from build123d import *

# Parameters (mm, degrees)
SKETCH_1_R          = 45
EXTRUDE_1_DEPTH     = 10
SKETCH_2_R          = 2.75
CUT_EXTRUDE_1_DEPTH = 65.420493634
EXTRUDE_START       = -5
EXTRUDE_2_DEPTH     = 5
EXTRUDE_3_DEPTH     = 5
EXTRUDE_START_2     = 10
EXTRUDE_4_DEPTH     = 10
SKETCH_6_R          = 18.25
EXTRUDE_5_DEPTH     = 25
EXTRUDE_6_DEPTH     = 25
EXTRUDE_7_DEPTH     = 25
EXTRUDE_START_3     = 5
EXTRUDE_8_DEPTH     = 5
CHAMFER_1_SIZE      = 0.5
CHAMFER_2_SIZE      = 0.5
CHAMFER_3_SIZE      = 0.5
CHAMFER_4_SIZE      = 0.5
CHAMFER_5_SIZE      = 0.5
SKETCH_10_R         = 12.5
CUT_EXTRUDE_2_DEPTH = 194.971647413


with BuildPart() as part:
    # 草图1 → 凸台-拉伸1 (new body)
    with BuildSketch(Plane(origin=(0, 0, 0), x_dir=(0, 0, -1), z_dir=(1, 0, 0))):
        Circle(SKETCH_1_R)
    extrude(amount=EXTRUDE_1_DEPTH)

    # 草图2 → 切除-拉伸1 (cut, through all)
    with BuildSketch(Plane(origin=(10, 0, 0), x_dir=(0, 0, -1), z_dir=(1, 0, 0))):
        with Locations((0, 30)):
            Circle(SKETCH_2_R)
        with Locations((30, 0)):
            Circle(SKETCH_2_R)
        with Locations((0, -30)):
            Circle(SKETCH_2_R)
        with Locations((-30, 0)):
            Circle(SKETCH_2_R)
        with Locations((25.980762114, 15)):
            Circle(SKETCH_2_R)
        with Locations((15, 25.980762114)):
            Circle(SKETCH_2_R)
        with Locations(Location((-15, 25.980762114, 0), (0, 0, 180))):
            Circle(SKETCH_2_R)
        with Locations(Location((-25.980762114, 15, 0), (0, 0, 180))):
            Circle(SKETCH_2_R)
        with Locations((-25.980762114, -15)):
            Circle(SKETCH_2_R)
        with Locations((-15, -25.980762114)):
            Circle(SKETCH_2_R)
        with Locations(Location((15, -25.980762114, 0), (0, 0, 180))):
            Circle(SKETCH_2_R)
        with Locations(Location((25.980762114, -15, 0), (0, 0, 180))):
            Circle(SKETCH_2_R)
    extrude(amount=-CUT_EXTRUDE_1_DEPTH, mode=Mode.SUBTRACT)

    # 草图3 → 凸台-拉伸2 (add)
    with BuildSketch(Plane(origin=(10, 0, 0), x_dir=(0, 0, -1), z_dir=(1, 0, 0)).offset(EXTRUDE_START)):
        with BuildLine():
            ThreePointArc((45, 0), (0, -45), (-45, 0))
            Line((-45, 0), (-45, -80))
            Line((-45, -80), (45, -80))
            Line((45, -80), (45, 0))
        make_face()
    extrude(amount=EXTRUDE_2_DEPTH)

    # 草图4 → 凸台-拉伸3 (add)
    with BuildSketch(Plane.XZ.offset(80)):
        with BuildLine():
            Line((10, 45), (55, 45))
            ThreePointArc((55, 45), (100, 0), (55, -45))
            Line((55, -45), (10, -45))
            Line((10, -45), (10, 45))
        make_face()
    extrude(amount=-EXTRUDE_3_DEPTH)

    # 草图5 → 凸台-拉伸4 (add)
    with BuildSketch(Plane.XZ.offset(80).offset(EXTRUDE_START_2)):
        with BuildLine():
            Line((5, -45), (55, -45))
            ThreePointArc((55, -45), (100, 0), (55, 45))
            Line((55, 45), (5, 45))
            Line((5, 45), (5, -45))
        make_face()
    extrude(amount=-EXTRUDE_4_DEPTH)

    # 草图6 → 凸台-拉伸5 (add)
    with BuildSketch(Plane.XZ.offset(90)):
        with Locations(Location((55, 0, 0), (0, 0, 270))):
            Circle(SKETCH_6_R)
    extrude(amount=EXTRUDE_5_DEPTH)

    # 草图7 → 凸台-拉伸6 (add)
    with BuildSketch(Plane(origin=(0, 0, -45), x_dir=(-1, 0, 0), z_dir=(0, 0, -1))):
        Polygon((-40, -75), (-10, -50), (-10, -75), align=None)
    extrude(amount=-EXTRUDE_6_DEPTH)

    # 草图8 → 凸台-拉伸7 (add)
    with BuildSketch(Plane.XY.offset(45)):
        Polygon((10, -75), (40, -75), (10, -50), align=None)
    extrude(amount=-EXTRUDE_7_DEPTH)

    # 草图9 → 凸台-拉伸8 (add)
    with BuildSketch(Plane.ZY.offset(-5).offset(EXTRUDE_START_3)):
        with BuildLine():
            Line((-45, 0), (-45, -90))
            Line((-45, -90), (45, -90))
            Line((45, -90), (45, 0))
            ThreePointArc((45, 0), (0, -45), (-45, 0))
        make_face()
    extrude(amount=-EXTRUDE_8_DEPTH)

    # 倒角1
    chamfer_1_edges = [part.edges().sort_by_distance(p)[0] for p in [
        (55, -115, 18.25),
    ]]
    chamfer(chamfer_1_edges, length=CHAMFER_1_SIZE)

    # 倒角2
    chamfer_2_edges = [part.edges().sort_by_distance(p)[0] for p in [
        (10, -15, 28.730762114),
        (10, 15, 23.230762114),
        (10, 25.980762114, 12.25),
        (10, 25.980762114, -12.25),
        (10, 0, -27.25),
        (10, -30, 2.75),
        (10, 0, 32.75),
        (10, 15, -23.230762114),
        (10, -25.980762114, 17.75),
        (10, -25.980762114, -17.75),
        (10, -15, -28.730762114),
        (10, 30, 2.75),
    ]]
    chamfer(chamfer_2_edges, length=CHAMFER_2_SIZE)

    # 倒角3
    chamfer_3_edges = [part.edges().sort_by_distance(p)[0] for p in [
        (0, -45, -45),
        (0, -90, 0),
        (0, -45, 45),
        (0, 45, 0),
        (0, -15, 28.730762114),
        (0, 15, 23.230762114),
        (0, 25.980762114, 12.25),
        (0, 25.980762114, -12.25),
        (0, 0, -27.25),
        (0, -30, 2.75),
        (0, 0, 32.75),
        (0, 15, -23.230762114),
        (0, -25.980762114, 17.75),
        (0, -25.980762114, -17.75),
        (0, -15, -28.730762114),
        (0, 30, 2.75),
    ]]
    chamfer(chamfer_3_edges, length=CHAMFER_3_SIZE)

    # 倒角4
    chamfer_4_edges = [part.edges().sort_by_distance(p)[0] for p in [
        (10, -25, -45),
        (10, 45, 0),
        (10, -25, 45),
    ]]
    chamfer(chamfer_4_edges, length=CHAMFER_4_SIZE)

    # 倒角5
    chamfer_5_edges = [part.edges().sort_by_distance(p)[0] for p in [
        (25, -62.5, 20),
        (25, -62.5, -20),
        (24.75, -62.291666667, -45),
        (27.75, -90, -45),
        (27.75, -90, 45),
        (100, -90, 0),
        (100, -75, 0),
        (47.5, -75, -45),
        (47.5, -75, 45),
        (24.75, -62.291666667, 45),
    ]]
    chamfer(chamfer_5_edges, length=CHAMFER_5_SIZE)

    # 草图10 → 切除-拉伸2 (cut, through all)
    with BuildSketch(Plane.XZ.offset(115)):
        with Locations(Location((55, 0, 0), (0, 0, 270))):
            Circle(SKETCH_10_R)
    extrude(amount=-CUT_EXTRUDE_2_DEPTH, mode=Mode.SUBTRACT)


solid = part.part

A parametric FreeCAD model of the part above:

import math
import FreeCAD as App
import Part
import Sketcher

V = App.Vector


def edges_at(feature, points):
    """Names of the edges that pass closest to the given points."""
    edges = feature.Shape.Edges
    near = lambda p: min(range(len(edges)), key=lambda i: edges[i].distToShape(Part.Vertex(*p))[0])
    return sorted({f"Edge{near(p) + 1}" for p in points})

doc = App.newDocument("Part")
params = doc.addObject("Spreadsheet::Sheet", "Params")
for row, (alias, value) in enumerate([
    ("sketch1_diameter", "90 mm"),
    ("pad1_length", "10 mm"),
    ("sketch2_diameter", "5.5 mm"),
    ("sketch3_radius", "45 mm"),
    ("sketch3_width", "80 mm"),
    ("pad2_length", "5 mm"),
    ("sketch4_radius", "45 mm"),
    ("sketch4_width", "45 mm"),
    ("pad3_length", "5 mm"),
    ("sketch5_radius", "45 mm"),
    ("sketch5_width", "50 mm"),
    ("pad4_length", "10 mm"),
    ("sketch6_diameter", "36.5 mm"),
    ("pad5_length", "25 mm"),
    ("sketch7_width", "30 mm"),
    ("sketch7_height", "25 mm"),
    ("pad6_length", "25 mm"),
    ("sketch8_width", "30 mm"),
    ("sketch8_height", "25 mm"),
    ("pad7_length", "25 mm"),
    ("sketch9_radius", "45 mm"),
    ("pad8_length", "5 mm"),
    ("chamfer_size", "0.5 mm"),
    ("chamfer2_size", "0.5 mm"),
    ("chamfer3_size", "0.5 mm"),
    ("chamfer4_size", "0.5 mm"),
    ("chamfer5_size", "0.5 mm"),
    ("sketch10_diameter", "25 mm"),
], start=1):
    params.set(f"A{row}", alias)
    params.set(f"B{row}", "=" + value)
    params.setAlias(f"B{row}", alias)

body = doc.addObject("PartDesign::Body", "Body")

sketch1 = body.newObject("Sketcher::SketchObject", "Sketch")
sketch1.AttachmentSupport = (doc.getObject("YZ_Plane"), [""])
sketch1.MapMode = "FlatFace"
sketch1.addGeometry(Part.Circle(V(0, 0, 0), V(0, 0, 1), 45), False)
sketch1.addConstraint([
    Sketcher.Constraint("Coincident", 0, 3, -1, 1),
    Sketcher.Constraint("Diameter", 0, 90.0),
])
sketch1.setExpression("Constraints[1]", "Params.sketch1_diameter")
pad1 = body.newObject("PartDesign::Pad", "Pad")
pad1.Profile = sketch1
pad1.setExpression("Length", "Params.pad1_length")

sketch2 = body.newObject("Sketcher::SketchObject", "Sketch001")
sketch2.AttachmentSupport = (doc.getObject("YZ_Plane"), [""])
sketch2.MapMode = "FlatFace"
sketch2.AttachmentOffset = App.Placement(V(0, 0, 10), App.Rotation())
sketch2.addGeometry([
    Part.Circle(V(30, 0, 0), V(0, 0, 1), 2.8),
    Part.Circle(V(0, -30, 0), V(0, 0, 1), 2.8),
    Part.Circle(V(-30, 0, 0), V(0, 0, 1), 2.8),
    Part.Circle(V(0, 30, 0), V(0, 0, 1), 2.8),
    Part.Circle(V(15, -26, 0), V(0, 0, 1), 2.8),
    Part.Circle(V(26, -15, 0), V(0, 0, 1), 2.8),
    Part.Circle(V(26, 15, 0), V(0, 0, 1), 2.8),
    Part.Circle(V(15, 26, 0), V(0, 0, 1), 2.8),
    Part.Circle(V(-15, 26, 0), V(0, 0, 1), 2.8),
    Part.Circle(V(-26, 15, 0), V(0, 0, 1), 2.8),
    Part.Circle(V(-26, -15, 0), V(0, 0, 1), 2.8),
    Part.Circle(V(-15, -26, 0), V(0, 0, 1), 2.8),
], False)
sketch2.addConstraint([
    Sketcher.Constraint("Equal", 0, 1),
    Sketcher.Constraint("Equal", 1, 2),
    Sketcher.Constraint("Equal", 2, 3),
    Sketcher.Constraint("Equal", 3, 4),
    Sketcher.Constraint("Equal", 4, 5),
    Sketcher.Constraint("Equal", 5, 6),
    Sketcher.Constraint("Equal", 6, 7),
    Sketcher.Constraint("Equal", 7, 8),
    Sketcher.Constraint("Equal", 8, 9),
    Sketcher.Constraint("Equal", 9, 10),
    Sketcher.Constraint("Equal", 10, 11),
    Sketcher.Constraint("Symmetric", 0, 3, 2, 3, -1, 1),
    Sketcher.Constraint("Symmetric", 1, 3, 3, 3, -1, 1),
    Sketcher.Constraint("Symmetric", 4, 3, 8, 3, -1, 1),
    Sketcher.Constraint("Symmetric", 5, 3, 9, 3, -1, 1),
    Sketcher.Constraint("Symmetric", 6, 3, 10, 3, -1, 1),
    Sketcher.Constraint("Symmetric", 7, 3, 11, 3, -1, 1),
    Sketcher.Constraint("Symmetric", 7, 3, 8, 3, -2),
    Sketcher.Constraint("Symmetric", 6, 3, 9, 3, -2),
    Sketcher.Constraint("PointOnObject", 0, 3, -1),
    Sketcher.Constraint("PointOnObject", 1, 3, -2),
    Sketcher.Constraint("Diameter", 0, 5.5),
    Sketcher.Constraint("DistanceX", -1, 1, 0, 3, 30.0),
    Sketcher.Constraint("DistanceY", 1, 3, -1, 1, 30.0),
    Sketcher.Constraint("DistanceX", -1, 1, 4, 3, 15.0),
    Sketcher.Constraint("DistanceY", 5, 3, -1, 1, 15.0),
    Sketcher.Constraint("DistanceY", 4, 3, -1, 1, 25.980762),
    Sketcher.Constraint("DistanceX", -1, 1, 5, 3, 25.980762),
])
sketch2.setExpression("Constraints[21]", "Params.sketch2_diameter")
pocket1 = body.newObject("PartDesign::Pocket", "Pocket")
pocket1.Profile = sketch2
pocket1.Type = "ThroughAll"

sketch3 = body.newObject("Sketcher::SketchObject", "Sketch002")
sketch3.AttachmentSupport = (doc.getObject("YZ_Plane"), [""])
sketch3.MapMode = "FlatFace"
sketch3.AttachmentOffset = App.Placement(V(0, 0, 5), App.Rotation())
sketch3.addGeometry([
    Part.ArcOfCircle(Part.Circle(V(0, 0, 0), V(0, 0, 1), 45), math.radians(90), math.radians(270)),
    Part.LineSegment(V(0, 45, 0), V(-80, 45, 0)),
    Part.LineSegment(V(-80, 45, 0), V(-80, -45, 0)),
    Part.LineSegment(V(-80, -45, 0), V(0, -45, 0)),
], False)
sketch3.addConstraint([
    Sketcher.Constraint("Tangent", 0, 1, 1, 1),
    Sketcher.Constraint("Coincident", 1, 2, 2, 1),
    Sketcher.Constraint("Coincident", 2, 2, 3, 1),
    Sketcher.Constraint("Tangent", 3, 2, 0, 2),
    Sketcher.Constraint("Horizontal", 1),
    Sketcher.Constraint("Vertical", 2),
    Sketcher.Constraint("Horizontal", 3),
    Sketcher.Constraint("Coincident", 0, 3, -1, 1),
    Sketcher.Constraint("Radius", 0, 45.0),
    Sketcher.Constraint("DistanceX", 1, 2, 1, 1, 80.0),
])
sketch3.setExpression("Constraints[8]", "Params.sketch3_radius")
sketch3.setExpression("Constraints[9]", "Params.sketch3_width")
pad2 = body.newObject("PartDesign::Pad", "Pad001")
pad2.Profile = sketch3
pad2.setExpression("Length", "Params.pad2_length")

sketch4 = body.newObject("Sketcher::SketchObject", "Sketch003")
sketch4.AttachmentSupport = (doc.getObject("XZ_Plane"), [""])
sketch4.MapMode = "FlatFace"
sketch4.AttachmentOffset = App.Placement(V(0, 0, 80), App.Rotation())
sketch4.addGeometry([
    Part.LineSegment(V(55, 45, 0), V(10, 45, 0)),
    Part.LineSegment(V(10, 45, 0), V(10, -45, 0)),
    Part.LineSegment(V(10, -45, 0), V(55, -45, 0)),
    Part.ArcOfCircle(Part.Circle(V(55, 0, 0), V(0, 0, 1), 45), math.radians(-90), math.radians(90)),
], False)
sketch4.addConstraint([
    Sketcher.Constraint("Coincident", 0, 2, 1, 1),
    Sketcher.Constraint("Coincident", 1, 2, 2, 1),
    Sketcher.Constraint("Tangent", 2, 2, 3, 1),
    Sketcher.Constraint("Tangent", 3, 2, 0, 1),
    Sketcher.Constraint("Horizontal", 0),
    Sketcher.Constraint("Vertical", 1),
    Sketcher.Constraint("Horizontal", 2),
    Sketcher.Constraint("PointOnObject", 3, 3, -1),
    Sketcher.Constraint("Radius", 3, 45.0),
    Sketcher.Constraint("DistanceX", 0, 2, 0, 1, 45.0),
    Sketcher.Constraint("DistanceX", -1, 1, 3, 3, 55.0),
])
sketch4.setExpression("Constraints[8]", "Params.sketch4_radius")
sketch4.setExpression("Constraints[9]", "Params.sketch4_width")
pad3 = body.newObject("PartDesign::Pad", "Pad002")
pad3.Profile = sketch4
pad3.setExpression("Length", "Params.pad3_length")
pad3.Reversed = True

sketch5 = body.newObject("Sketcher::SketchObject", "Sketch004")
sketch5.AttachmentSupport = (doc.getObject("XZ_Plane"), [""])
sketch5.MapMode = "FlatFace"
sketch5.AttachmentOffset = App.Placement(V(0, 0, 90), App.Rotation())
sketch5.addGeometry([
    Part.LineSegment(V(5, -45, 0), V(55, -45, 0)),
    Part.ArcOfCircle(Part.Circle(V(55, 0, 0), V(0, 0, 1), 45), math.radians(-90), math.radians(90)),
    Part.LineSegment(V(55, 45, 0), V(5, 45, 0)),
    Part.LineSegment(V(5, 45, 0), V(5, -45, 0)),
], False)
sketch5.addConstraint([
    Sketcher.Constraint("Tangent", 0, 2, 1, 1),
    Sketcher.Constraint("Tangent", 1, 2, 2, 1),
    Sketcher.Constraint("Coincident", 2, 2, 3, 1),
    Sketcher.Constraint("Coincident", 3, 2, 0, 1),
    Sketcher.Constraint("Horizontal", 0),
    Sketcher.Constraint("Horizontal", 2),
    Sketcher.Constraint("Vertical", 3),
    Sketcher.Constraint("PointOnObject", 1, 3, -1),
    Sketcher.Constraint("Radius", 1, 45.0),
    Sketcher.Constraint("DistanceX", 0, 1, 0, 2, 50.0),
    Sketcher.Constraint("DistanceX", -1, 1, 1, 3, 55.0),
])
sketch5.setExpression("Constraints[8]", "Params.sketch5_radius")
sketch5.setExpression("Constraints[9]", "Params.sketch5_width")
pad4 = body.newObject("PartDesign::Pad", "Pad003")
pad4.Profile = sketch5
pad4.setExpression("Length", "Params.pad4_length")
pad4.Reversed = True

sketch6 = body.newObject("Sketcher::SketchObject", "Sketch005")
sketch6.AttachmentSupport = (doc.getObject("XZ_Plane"), [""])
sketch6.MapMode = "FlatFace"
sketch6.AttachmentOffset = App.Placement(V(0, 0, 90), App.Rotation())
sketch6.addGeometry(Part.Circle(V(55, 0, 0), V(0, 0, 1), 18), False)
sketch6.addConstraint([
    Sketcher.Constraint("PointOnObject", 0, 3, -1),
    Sketcher.Constraint("Diameter", 0, 36.5),
    Sketcher.Constraint("DistanceX", -1, 1, 0, 3, 55.0),
])
sketch6.setExpression("Constraints[1]", "Params.sketch6_diameter")
pad5 = body.newObject("PartDesign::Pad", "Pad004")
pad5.Profile = sketch6
pad5.setExpression("Length", "Params.pad5_length")

sketch7 = body.newObject("Sketcher::SketchObject", "Sketch006")
sketch7.AttachmentSupport = (doc.getObject("XY_Plane"), [""])
sketch7.MapMode = "FlatFace"
sketch7.AttachmentOffset = App.Placement(V(0, 0, -45), App.Rotation())
sketch7.addGeometry([
    Part.LineSegment(V(10, -50, 0), V(40, -75, 0)),
    Part.LineSegment(V(40, -75, 0), V(10, -75, 0)),
    Part.LineSegment(V(10, -75, 0), V(10, -50, 0)),
], False)
sketch7.addConstraint([
    Sketcher.Constraint("Coincident", 0, 2, 1, 1),
    Sketcher.Constraint("Coincident", 1, 2, 2, 1),
    Sketcher.Constraint("Coincident", 2, 2, 0, 1),
    Sketcher.Constraint("Horizontal", 1),
    Sketcher.Constraint("Vertical", 2),
    Sketcher.Constraint("DistanceX", 1, 2, 1, 1, 30.0),
    Sketcher.Constraint("DistanceY", 2, 1, 2, 2, 25.0),
    Sketcher.Constraint("DistanceX", -1, 1, 0, 2, 40.0),
    Sketcher.Constraint("DistanceY", 0, 2, -1, 1, 75.0),
])
sketch7.setExpression("Constraints[5]", "Params.sketch7_width")
sketch7.setExpression("Constraints[6]", "Params.sketch7_height")
pad6 = body.newObject("PartDesign::Pad", "Pad005")
pad6.Profile = sketch7
pad6.setExpression("Length", "Params.pad6_length")

sketch8 = body.newObject("Sketcher::SketchObject", "Sketch007")
sketch8.AttachmentSupport = (doc.getObject("XY_Plane"), [""])
sketch8.MapMode = "FlatFace"
sketch8.AttachmentOffset = App.Placement(V(0, 0, 45), App.Rotation())
sketch8.addGeometry([
    Part.LineSegment(V(10, -75, 0), V(40, -75, 0)),
    Part.LineSegment(V(40, -75, 0), V(10, -50, 0)),
    Part.LineSegment(V(10, -50, 0), V(10, -75, 0)),
], False)
sketch8.addConstraint([
    Sketcher.Constraint("Coincident", 0, 2, 1, 1),
    Sketcher.Constraint("Coincident", 1, 2, 2, 1),
    Sketcher.Constraint("Coincident", 2, 2, 0, 1),
    Sketcher.Constraint("Horizontal", 0),
    Sketcher.Constraint("Vertical", 2),
    Sketcher.Constraint("DistanceX", 0, 1, 0, 2, 30.0),
    Sketcher.Constraint("DistanceY", 2, 2, 2, 1, 25.0),
    Sketcher.Constraint("DistanceX", -1, 1, 0, 2, 40.0),
    Sketcher.Constraint("DistanceY", 0, 2, -1, 1, 75.0),
])
sketch8.setExpression("Constraints[5]", "Params.sketch8_width")
sketch8.setExpression("Constraints[6]", "Params.sketch8_height")
pad7 = body.newObject("PartDesign::Pad", "Pad006")
pad7.Profile = sketch8
pad7.setExpression("Length", "Params.pad7_length")
pad7.Reversed = True

sketch9 = body.newObject("Sketcher::SketchObject", "Sketch008")
sketch9.AttachmentSupport = (doc.getObject("YZ_Plane"), [""])
sketch9.MapMode = "FlatFace"
sketch9.addGeometry([
    Part.LineSegment(V(0, -45, 0), V(-90, -45, 0)),
    Part.LineSegment(V(-90, -45, 0), V(-90, 45, 0)),
    Part.LineSegment(V(-90, 45, 0), V(0, 45, 0)),
    Part.ArcOfCircle(Part.Circle(V(0, 0, 0), V(0, 0, 1), 45), math.radians(90), math.radians(270)),
], False)
sketch9.addConstraint([
    Sketcher.Constraint("Coincident", 0, 2, 1, 1),
    Sketcher.Constraint("Coincident", 1, 2, 2, 1),
    Sketcher.Constraint("Tangent", 2, 2, 3, 1),
    Sketcher.Constraint("Tangent", 3, 2, 0, 1),
    Sketcher.Constraint("Horizontal", 0),
    Sketcher.Constraint("Vertical", 1),
    Sketcher.Constraint("Horizontal", 2),
    Sketcher.Constraint("Coincident", 3, 3, -1, 1),
    Sketcher.Constraint("Equal", 2, 1),
    Sketcher.Constraint("Radius", 3, 45.0),
])
sketch9.setExpression("Constraints[9]", "Params.sketch9_radius")
pad8 = body.newObject("PartDesign::Pad", "Pad007")
pad8.Profile = sketch9
pad8.setExpression("Length", "Params.pad8_length")
doc.recompute()

chamfer = body.newObject("PartDesign::Chamfer", "Chamfer")
chamfer.Base = (pad8, edges_at(pad8, [(55, -115, 18.25)]))
chamfer.setExpression("Size", "Params.chamfer_size")
doc.recompute()

chamfer2 = body.newObject("PartDesign::Chamfer", "Chamfer001")
chamfer2.Base = (chamfer, edges_at(chamfer, [
    (10, -15, 28.731),
    (10, 15, 23.231),
    (10, 25.981, 12.25),
    (10, 25.981, -12.25),
    (10, 0, -27.25),
    (10, -30, 2.75),
    (10, 0, 32.75),
    (10, 15, -23.231),
    (10, -25.981, 17.75),
    (10, -25.981, -17.75),
    (10, -15, -28.731),
    (10, 30, 2.75),
]))
chamfer2.setExpression("Size", "Params.chamfer2_size")
doc.recompute()

chamfer3 = body.newObject("PartDesign::Chamfer", "Chamfer002")
chamfer3.Base = (chamfer2, edges_at(chamfer2, [
    (0, -45, -45),
    (0, -90, 0),
    (0, -45, 45),
    (0, 45, 0),
    (0, -15, 28.731),
    (0, 15, 23.231),
    (0, 25.981, 12.25),
    (0, 25.981, -12.25),
    (0, 0, -27.25),
    (0, -30, 2.75),
    (0, 0, 32.75),
    (0, 15, -23.231),
    (0, -25.981, 17.75),
    (0, -25.981, -17.75),
    (0, -15, -28.731),
    (0, 30, 2.75),
]))
chamfer3.setExpression("Size", "Params.chamfer3_size")
doc.recompute()

chamfer4 = body.newObject("PartDesign::Chamfer", "Chamfer003")
chamfer4.Base = (chamfer3, edges_at(chamfer3, [(10, -25, -45), (10, 45, 0), (10, -25, 45)]))
chamfer4.setExpression("Size", "Params.chamfer4_size")
doc.recompute()

chamfer5 = body.newObject("PartDesign::Chamfer", "Chamfer004")
chamfer5.Base = (chamfer4, edges_at(chamfer4, [
    (25, -62.5, 20),
    (25, -62.5, -20),
    (24.75, -62.292, -45),
    (27.75, -90, -45),
    (27.75, -90, 45),
    (100, -90, 0),
    (100, -75, 0),
    (47.5, -75, -45),
    (47.5, -75, 45),
    (24.75, -62.292, 45),
]))
chamfer5.setExpression("Size", "Params.chamfer5_size")

sketch10 = body.newObject("Sketcher::SketchObject", "Sketch009")
sketch10.AttachmentSupport = (doc.getObject("XZ_Plane"), [""])
sketch10.MapMode = "FlatFace"
sketch10.AttachmentOffset = App.Placement(V(0, 0, 115), App.Rotation())
sketch10.addGeometry(Part.Circle(V(55, 0, 0), V(0, 0, 1), 12), False)
sketch10.addConstraint([
    Sketcher.Constraint("PointOnObject", 0, 3, -1),
    Sketcher.Constraint("Diameter", 0, 25.0),
    Sketcher.Constraint("DistanceX", -1, 1, 0, 3, 55.0),
])
sketch10.setExpression("Constraints[1]", "Params.sketch10_diameter")
pocket2 = body.newObject("PartDesign::Pocket", "Pocket001")
pocket2.Profile = sketch10
pocket2.Type = "ThroughAll"

doc.recompute()
